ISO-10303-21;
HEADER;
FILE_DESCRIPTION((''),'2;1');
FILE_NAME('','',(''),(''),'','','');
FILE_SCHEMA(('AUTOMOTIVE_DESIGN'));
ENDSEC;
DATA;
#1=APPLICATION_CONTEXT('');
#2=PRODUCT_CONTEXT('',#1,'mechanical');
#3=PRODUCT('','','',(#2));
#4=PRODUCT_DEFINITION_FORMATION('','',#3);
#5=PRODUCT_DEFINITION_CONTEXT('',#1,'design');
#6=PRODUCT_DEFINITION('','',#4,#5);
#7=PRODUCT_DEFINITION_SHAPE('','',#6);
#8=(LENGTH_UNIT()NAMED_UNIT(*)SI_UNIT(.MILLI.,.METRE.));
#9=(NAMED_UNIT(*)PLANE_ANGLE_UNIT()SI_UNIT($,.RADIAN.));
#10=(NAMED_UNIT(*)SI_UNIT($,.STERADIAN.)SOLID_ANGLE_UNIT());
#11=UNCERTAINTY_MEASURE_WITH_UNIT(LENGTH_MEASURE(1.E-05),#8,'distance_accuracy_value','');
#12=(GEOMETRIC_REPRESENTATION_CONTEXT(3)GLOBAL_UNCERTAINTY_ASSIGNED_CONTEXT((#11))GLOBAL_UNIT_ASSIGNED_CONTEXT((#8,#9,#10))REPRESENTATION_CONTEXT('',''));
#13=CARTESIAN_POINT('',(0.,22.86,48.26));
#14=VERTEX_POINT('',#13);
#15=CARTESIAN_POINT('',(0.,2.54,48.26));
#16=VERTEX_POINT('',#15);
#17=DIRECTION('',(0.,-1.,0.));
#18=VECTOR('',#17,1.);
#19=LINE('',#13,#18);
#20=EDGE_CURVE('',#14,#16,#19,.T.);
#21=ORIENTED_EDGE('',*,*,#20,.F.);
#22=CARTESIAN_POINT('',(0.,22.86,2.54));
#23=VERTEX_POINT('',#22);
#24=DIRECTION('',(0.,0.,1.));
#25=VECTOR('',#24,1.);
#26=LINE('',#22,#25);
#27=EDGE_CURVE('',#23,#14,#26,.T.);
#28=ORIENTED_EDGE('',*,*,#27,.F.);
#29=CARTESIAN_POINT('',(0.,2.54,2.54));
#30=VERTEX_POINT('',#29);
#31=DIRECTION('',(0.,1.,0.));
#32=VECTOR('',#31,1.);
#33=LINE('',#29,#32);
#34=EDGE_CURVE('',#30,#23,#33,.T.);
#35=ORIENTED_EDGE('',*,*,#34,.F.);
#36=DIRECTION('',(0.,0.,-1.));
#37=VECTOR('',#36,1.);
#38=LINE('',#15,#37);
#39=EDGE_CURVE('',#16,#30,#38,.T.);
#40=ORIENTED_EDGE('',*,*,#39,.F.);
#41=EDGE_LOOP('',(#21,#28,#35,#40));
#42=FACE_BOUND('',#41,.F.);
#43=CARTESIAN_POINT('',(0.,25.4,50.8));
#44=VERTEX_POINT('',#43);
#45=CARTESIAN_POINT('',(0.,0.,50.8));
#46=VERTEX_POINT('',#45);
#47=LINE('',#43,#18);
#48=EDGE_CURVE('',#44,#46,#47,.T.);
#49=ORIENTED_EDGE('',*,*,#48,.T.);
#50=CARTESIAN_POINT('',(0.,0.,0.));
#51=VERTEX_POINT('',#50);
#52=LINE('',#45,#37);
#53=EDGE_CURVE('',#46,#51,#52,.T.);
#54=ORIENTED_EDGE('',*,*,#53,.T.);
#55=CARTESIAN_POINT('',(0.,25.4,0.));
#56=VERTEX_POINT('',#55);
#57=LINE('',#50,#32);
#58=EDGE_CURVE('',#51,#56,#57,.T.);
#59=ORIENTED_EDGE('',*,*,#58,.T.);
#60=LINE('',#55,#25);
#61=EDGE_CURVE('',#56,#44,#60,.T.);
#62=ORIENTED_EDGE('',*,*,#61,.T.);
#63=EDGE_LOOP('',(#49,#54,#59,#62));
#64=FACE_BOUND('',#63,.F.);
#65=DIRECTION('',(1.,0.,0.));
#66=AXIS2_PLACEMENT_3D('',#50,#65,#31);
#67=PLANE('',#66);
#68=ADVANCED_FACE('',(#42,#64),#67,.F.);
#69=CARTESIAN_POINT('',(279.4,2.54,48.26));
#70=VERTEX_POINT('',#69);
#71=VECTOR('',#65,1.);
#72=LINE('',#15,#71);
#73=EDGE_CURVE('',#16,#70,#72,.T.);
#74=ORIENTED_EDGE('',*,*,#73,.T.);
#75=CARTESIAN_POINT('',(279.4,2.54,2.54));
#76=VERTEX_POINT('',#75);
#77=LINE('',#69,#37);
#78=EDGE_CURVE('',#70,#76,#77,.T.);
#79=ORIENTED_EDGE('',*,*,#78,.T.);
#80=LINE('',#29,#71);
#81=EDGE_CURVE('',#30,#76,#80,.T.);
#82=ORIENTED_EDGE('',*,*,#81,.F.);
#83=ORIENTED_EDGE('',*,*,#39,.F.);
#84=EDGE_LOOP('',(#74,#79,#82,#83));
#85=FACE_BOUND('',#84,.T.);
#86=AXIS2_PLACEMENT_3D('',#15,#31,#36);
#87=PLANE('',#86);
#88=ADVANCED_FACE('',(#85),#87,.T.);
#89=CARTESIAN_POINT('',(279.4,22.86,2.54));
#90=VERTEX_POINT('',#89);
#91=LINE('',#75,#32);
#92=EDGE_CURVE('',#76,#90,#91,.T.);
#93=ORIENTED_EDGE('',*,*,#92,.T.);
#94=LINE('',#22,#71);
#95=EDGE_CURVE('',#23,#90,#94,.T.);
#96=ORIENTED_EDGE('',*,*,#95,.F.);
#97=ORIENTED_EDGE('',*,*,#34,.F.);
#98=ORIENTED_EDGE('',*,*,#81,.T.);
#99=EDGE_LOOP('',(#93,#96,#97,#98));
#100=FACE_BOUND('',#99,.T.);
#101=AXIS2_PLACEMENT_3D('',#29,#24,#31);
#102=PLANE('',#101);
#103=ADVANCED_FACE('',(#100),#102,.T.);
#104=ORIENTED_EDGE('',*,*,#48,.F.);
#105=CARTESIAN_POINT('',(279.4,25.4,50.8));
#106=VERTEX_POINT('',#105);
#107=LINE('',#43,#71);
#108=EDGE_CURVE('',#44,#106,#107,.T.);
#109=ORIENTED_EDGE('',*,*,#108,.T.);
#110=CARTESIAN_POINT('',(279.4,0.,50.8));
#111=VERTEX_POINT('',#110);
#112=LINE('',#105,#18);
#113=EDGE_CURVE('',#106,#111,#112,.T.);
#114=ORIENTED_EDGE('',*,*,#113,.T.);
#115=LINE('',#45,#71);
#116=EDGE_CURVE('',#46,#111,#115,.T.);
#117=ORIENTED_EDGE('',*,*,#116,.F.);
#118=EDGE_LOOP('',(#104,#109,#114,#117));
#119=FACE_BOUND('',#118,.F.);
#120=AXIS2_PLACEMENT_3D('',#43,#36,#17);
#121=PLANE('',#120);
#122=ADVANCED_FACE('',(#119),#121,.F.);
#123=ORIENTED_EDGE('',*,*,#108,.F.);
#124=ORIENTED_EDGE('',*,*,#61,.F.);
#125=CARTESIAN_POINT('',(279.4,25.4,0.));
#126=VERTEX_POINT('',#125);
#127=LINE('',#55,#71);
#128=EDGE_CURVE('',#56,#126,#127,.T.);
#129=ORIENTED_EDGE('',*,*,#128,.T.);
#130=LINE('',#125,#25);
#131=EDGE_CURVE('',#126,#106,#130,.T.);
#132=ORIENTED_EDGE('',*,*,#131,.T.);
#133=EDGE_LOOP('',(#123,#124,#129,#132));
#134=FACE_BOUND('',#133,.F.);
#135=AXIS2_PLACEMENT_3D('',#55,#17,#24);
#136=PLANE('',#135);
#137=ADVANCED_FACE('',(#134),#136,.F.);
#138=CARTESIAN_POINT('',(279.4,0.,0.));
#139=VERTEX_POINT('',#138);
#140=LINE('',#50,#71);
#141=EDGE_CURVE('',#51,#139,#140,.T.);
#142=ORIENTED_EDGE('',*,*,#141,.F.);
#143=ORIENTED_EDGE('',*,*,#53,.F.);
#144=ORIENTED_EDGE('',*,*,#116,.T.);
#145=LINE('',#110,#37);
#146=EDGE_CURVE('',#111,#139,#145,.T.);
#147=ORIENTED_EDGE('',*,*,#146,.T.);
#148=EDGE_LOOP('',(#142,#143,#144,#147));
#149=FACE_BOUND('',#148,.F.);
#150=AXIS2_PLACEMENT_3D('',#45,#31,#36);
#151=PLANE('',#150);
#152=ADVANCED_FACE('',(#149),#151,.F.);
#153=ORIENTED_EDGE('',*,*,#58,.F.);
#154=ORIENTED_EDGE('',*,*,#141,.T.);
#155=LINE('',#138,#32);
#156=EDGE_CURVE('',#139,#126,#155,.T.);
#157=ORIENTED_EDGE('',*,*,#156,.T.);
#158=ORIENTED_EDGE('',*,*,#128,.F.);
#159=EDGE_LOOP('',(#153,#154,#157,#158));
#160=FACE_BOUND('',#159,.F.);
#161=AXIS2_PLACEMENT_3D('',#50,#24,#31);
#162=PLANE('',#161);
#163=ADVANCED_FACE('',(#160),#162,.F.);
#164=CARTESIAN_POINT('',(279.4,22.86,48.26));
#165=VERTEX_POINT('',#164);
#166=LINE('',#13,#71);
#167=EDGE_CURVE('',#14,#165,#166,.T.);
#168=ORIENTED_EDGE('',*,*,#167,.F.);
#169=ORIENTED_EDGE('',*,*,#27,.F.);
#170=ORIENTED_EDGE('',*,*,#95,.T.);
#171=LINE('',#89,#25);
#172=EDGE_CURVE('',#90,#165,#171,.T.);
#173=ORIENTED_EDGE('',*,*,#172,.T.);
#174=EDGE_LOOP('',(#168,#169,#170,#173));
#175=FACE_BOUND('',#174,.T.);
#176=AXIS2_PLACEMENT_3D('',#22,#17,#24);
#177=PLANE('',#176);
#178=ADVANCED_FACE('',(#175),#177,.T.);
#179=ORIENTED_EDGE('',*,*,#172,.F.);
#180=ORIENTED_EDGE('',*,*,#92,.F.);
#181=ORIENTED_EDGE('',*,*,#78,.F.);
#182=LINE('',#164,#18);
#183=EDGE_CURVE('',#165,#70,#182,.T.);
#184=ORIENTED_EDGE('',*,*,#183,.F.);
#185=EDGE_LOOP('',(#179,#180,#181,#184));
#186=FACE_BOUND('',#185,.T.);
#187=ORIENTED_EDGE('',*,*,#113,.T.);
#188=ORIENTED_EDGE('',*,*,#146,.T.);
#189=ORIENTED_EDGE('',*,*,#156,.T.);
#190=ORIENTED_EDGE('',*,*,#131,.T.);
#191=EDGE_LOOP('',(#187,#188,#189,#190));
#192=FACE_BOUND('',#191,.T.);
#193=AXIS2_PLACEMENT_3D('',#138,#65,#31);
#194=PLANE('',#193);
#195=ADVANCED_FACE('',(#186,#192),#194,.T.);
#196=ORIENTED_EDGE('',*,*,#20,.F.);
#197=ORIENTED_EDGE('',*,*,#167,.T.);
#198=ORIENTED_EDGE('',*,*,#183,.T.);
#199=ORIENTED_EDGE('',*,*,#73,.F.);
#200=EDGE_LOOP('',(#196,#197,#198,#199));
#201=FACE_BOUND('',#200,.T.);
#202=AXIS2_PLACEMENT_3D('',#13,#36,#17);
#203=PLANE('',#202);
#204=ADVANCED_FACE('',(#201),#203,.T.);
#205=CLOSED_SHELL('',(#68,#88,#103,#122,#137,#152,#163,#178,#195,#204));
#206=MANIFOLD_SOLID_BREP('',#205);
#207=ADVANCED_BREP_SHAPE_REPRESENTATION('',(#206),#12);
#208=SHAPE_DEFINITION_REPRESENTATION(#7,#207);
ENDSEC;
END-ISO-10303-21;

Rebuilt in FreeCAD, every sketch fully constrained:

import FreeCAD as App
import Part
import Sketcher
from FreeCAD import Vector
Q = App.Units.Quantity

doc = App.newDocument("Part")
body = doc.addObject("PartDesign::Body", "Body")

sketch1 = doc.addObject("Sketcher::SketchObject", "Sketch")
body.addObject(sketch1)
sketch1.AttachmentSupport = (doc.YZ_Plane, [""])
sketch1.MapMode = "FlatFace"
sketch1.addGeometry([
    Part.LineSegment(Vector(0, 51, 0), Vector(0, 0, 0)),
    Part.LineSegment(Vector(0, 0, 0), Vector(25, 0, 0)),
    Part.LineSegment(Vector(25, 0, 0), Vector(25, 51, 0)),
    Part.LineSegment(Vector(25, 51, 0), Vector(0, 51, 0)),
    Part.LineSegment(Vector(3, 48, 0), Vector(23, 48, 0)),
    Part.LineSegment(Vector(23, 48, 0), Vector(23, 3, 0)),
    Part.LineSegment(Vector(23, 3, 0), Vector(3, 3, 0)),
    Part.LineSegment(Vector(3, 3, 0), Vector(3, 48, 0)),
], False)
sketch1.addConstraint([
    Sketcher.Constraint("Coincident", 0, 2, 1, 1),
    Sketcher.Constraint("Coincident", 1, 2, 2, 1),
    Sketcher.Constraint("Coincident", 2, 2, 3, 1),
    Sketcher.Constraint("Coincident", 3, 2, 0, 1),
    Sketcher.Constraint("Coincident", 4, 2, 5, 1),
    Sketcher.Constraint("Coincident", 5, 2, 6, 1),
    Sketcher.Constraint("Coincident", 6, 2, 7, 1),
    Sketcher.Constraint("Coincident", 7, 2, 4, 1),
    Sketcher.Constraint("Vertical", 0),
    Sketcher.Constraint("Horizontal", 1),
    Sketcher.Constraint("Vertical", 2),
    Sketcher.Constraint("Horizontal", 3),
    Sketcher.Constraint("Horizontal", 4),
    Sketcher.Constraint("Vertical", 5),
    Sketcher.Constraint("Horizontal", 6),
    Sketcher.Constraint("Vertical", 7),
    Sketcher.Constraint("Coincident", 0, 2, -1, 1),
    Sketcher.Constraint("DistanceX", 1, 1, 1, 2, Q("1 in")),
    Sketcher.Constraint("DistanceY", 0, 2, 0, 1, Q("2 in")),
    Sketcher.Constraint("DistanceY", -1, 1, 5, 2, Q("0.1 in")),
    Sketcher.Constraint("DistanceX", -1, 1, 6, 2, Q("0.1 in")),
    Sketcher.Constraint("DistanceX", 4, 2, 2, 2, Q("0.1 in")),
    Sketcher.Constraint("DistanceY", 4, 2, 2, 2, Q("0.1 in")),
])
pad1 = doc.addObject("PartDesign::Pad", "Pad")
body.addObject(pad1)
pad1.Profile = sketch1
pad1.Length = Q("11 in")

doc.recompute()
